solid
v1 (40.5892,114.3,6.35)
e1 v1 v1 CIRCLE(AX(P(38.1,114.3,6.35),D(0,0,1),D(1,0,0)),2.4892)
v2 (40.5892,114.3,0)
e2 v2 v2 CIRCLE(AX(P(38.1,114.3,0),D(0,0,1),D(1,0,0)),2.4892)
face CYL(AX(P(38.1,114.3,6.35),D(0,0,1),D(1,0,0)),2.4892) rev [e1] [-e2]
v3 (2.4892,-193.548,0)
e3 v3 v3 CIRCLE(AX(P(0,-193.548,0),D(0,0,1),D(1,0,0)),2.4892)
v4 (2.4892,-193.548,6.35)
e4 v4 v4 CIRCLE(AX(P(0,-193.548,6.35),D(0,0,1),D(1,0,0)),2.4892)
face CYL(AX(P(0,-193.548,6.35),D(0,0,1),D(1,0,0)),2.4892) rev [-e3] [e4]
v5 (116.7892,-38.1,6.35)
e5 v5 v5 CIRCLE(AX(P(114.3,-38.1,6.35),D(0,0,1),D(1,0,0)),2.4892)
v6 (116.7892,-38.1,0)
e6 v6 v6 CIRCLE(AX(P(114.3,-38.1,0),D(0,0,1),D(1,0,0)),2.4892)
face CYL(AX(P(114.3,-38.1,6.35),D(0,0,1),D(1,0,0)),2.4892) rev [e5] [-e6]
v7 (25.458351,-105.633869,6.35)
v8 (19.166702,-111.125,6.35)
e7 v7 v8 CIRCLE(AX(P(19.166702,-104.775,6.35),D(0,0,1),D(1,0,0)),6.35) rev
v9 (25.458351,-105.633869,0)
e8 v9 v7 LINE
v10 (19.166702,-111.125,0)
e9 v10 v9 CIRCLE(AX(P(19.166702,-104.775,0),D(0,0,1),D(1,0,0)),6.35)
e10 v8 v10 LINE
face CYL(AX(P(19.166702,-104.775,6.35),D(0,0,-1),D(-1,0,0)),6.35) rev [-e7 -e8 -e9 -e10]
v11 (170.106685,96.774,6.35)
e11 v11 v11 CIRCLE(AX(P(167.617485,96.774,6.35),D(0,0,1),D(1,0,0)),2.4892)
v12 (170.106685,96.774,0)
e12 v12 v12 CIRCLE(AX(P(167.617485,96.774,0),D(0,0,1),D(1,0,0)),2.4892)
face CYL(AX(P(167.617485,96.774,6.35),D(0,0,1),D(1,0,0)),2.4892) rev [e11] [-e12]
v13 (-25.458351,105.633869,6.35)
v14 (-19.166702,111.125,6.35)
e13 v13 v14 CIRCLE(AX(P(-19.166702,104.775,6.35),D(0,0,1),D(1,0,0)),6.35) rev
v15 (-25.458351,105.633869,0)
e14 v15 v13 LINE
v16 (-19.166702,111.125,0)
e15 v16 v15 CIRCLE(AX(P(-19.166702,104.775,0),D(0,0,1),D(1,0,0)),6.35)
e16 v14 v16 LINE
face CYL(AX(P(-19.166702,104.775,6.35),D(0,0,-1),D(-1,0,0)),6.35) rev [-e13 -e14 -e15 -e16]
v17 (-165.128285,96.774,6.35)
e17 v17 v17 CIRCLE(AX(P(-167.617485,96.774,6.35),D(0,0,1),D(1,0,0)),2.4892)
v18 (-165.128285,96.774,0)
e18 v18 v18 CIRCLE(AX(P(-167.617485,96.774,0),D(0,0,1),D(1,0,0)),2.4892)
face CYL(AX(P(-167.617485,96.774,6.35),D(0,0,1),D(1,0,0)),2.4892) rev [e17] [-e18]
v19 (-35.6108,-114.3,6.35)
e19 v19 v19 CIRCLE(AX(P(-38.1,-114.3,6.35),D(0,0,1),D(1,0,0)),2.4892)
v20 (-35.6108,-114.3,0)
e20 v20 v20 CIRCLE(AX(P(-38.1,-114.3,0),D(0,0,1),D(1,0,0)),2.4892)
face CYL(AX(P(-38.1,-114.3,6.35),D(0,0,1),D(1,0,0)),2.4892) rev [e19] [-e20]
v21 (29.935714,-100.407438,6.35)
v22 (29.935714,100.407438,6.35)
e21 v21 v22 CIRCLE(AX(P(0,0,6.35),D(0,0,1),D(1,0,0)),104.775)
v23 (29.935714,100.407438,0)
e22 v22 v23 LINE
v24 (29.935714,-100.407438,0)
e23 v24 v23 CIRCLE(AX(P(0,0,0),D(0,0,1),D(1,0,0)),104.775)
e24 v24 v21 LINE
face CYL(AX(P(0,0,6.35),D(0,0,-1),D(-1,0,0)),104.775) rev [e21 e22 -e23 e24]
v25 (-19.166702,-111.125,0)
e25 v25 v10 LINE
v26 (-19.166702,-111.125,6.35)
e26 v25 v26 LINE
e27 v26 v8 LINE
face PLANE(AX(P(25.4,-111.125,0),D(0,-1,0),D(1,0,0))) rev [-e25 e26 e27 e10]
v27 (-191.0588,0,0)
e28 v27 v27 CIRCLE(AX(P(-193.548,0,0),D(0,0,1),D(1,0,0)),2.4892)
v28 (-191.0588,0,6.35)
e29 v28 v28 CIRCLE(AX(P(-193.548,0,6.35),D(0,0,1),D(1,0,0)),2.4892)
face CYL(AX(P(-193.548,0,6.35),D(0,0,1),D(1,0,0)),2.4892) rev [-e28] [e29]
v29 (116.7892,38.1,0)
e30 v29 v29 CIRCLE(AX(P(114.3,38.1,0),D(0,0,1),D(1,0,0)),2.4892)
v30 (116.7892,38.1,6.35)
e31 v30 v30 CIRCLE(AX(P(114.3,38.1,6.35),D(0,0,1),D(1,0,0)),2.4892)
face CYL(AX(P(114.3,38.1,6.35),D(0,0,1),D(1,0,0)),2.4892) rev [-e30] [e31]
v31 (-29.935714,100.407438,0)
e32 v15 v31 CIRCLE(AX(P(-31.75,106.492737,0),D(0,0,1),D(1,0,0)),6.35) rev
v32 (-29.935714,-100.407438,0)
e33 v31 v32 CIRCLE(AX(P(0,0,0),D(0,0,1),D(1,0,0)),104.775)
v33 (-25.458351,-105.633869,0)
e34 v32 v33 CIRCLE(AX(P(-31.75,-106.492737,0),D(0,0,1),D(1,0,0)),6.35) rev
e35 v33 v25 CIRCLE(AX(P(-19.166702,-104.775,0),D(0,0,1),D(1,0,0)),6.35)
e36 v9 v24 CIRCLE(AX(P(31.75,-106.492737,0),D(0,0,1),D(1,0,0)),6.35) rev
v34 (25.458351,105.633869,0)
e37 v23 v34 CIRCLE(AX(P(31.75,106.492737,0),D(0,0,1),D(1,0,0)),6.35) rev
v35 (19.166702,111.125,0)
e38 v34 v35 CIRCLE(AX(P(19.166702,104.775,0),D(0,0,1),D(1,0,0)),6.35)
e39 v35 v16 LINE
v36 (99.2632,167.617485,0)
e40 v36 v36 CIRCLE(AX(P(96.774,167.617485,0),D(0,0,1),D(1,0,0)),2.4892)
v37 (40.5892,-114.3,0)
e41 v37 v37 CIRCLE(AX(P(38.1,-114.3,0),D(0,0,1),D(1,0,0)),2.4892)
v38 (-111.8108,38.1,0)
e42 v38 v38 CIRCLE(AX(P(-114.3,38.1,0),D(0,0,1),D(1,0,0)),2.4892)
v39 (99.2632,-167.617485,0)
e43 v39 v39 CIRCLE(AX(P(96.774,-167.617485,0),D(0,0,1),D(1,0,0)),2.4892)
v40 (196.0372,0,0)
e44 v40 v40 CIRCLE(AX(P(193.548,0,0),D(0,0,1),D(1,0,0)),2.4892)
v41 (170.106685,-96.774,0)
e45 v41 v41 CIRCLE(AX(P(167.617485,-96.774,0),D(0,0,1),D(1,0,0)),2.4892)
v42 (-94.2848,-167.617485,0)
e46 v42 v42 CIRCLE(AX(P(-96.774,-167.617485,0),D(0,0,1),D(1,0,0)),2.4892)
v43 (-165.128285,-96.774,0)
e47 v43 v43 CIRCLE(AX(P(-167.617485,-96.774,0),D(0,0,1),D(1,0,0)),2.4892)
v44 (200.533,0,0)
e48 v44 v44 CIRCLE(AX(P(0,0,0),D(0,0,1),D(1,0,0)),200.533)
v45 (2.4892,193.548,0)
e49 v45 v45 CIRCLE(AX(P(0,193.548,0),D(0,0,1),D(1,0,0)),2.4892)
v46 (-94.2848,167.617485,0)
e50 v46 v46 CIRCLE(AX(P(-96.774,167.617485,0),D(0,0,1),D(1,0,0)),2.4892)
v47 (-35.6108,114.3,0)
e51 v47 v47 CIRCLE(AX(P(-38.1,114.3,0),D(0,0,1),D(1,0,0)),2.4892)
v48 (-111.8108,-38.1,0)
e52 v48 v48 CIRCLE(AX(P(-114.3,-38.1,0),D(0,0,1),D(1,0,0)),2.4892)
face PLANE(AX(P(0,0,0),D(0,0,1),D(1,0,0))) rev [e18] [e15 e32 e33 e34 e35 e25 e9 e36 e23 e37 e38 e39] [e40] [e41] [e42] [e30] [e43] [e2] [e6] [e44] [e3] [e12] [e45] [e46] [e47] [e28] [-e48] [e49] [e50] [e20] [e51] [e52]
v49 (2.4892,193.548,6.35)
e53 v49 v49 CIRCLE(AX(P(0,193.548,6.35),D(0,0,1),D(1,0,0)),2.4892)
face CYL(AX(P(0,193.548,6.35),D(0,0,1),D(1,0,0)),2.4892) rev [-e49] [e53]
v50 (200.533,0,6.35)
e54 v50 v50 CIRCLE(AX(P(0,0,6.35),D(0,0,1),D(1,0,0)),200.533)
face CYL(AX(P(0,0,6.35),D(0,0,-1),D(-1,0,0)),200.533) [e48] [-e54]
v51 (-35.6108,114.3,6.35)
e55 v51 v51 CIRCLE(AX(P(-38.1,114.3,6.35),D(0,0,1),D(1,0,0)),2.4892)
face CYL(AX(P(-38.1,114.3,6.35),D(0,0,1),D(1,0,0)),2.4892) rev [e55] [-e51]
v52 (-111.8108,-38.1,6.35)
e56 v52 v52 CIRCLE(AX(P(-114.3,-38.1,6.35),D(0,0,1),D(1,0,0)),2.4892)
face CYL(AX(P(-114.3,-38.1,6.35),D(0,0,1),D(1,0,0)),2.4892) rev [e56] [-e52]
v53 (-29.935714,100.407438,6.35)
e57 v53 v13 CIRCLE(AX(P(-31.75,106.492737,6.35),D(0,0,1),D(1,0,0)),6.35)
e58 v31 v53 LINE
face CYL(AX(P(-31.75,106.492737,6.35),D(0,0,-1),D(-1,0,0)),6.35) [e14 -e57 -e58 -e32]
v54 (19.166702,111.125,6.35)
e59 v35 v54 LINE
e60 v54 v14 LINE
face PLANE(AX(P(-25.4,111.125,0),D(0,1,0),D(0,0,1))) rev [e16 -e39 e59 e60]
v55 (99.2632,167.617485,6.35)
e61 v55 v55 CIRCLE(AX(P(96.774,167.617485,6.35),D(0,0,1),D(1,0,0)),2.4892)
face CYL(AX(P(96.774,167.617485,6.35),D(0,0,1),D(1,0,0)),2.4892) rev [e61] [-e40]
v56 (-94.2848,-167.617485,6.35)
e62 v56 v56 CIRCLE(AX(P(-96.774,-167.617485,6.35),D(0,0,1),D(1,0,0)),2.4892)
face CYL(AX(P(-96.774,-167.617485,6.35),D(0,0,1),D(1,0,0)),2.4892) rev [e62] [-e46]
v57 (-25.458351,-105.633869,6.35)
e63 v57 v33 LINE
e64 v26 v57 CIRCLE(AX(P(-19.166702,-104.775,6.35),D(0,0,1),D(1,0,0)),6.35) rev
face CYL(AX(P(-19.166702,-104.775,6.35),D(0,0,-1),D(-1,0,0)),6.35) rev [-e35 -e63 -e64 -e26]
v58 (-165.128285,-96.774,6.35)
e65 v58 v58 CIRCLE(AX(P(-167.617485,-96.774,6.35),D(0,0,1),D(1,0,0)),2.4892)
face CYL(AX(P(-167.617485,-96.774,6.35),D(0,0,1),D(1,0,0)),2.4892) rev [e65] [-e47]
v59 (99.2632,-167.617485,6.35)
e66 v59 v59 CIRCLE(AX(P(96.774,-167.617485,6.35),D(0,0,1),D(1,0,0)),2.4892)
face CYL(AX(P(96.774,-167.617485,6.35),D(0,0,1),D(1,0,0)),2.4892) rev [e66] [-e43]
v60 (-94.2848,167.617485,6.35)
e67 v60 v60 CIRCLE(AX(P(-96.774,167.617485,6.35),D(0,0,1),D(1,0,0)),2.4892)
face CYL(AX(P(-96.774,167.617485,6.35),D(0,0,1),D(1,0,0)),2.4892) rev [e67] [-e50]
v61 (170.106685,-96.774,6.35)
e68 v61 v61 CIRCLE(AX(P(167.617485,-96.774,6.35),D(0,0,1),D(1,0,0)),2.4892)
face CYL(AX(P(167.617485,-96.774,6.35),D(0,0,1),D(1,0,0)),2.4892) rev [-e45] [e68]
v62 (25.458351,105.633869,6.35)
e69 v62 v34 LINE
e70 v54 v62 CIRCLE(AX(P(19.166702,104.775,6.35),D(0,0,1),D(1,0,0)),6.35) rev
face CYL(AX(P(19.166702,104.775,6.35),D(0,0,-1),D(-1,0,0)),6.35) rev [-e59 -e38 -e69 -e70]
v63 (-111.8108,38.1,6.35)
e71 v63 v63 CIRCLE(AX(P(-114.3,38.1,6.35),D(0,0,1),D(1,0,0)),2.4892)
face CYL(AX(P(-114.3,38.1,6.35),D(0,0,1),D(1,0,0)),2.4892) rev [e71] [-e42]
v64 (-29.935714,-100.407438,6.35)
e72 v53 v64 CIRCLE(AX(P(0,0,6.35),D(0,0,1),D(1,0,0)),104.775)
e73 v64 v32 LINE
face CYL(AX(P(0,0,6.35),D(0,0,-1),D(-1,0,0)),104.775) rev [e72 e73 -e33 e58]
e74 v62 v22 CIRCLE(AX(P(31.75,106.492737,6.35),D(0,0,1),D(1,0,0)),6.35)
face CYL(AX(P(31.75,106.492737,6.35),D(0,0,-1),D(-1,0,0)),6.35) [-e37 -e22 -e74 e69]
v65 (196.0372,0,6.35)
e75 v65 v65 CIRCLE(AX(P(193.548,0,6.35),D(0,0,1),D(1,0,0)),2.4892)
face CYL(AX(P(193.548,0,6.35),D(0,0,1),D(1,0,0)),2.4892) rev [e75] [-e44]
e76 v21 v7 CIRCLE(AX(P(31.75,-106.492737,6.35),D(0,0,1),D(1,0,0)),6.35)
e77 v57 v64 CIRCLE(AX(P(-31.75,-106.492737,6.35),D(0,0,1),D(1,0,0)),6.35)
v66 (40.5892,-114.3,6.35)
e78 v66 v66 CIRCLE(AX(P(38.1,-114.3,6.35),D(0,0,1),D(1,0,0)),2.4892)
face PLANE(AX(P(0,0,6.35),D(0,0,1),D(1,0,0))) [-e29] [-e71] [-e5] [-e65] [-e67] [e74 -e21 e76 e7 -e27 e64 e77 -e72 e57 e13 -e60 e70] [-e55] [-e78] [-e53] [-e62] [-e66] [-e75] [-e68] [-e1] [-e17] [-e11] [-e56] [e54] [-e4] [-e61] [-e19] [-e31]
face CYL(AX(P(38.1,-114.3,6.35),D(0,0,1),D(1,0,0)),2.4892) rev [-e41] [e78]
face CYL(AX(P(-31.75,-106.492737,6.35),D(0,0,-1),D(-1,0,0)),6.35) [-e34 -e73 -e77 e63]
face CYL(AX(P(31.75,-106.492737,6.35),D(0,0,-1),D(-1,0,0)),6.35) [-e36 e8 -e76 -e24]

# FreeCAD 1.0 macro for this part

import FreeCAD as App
import Part
import Sketcher
Q = App.Units.Quantity


def edges_at(feature, points):
    """Names of the edges that pass closest to the given points."""
    edges = feature.Shape.Edges
    near = lambda p: min(range(len(edges)), key=lambda i: edges[i].distToShape(Part.Vertex(*p))[0])
    return sorted({f"Edge{near(p) + 1}" for p in points})


def add_polygon(sketch, points):
    """Adds a closed chain of lines whose ends are joined by coincident constraints."""
    first, n = sketch.GeometryCount, len(points)
    for a, b in zip(points, points[1:] + points[:1]):
        sketch.addGeometry(Part.LineSegment(App.Vector(*a, 0), App.Vector(*b, 0)), False)
    for i in range(n):
        sketch.addConstraint(Sketcher.Constraint("Coincident", first + i, 2, first + (i + 1) % n, 1))

doc = App.newDocument("Part")
params = doc.addObject("Spreadsheet::Sheet", "Params")
for row, (alias, value) in enumerate([
    ("sketch1_diameter", "15.79 in"),
    ("sketch1_diameter2", "8.25 in"),
    ("pad1_length", "0.25 in"),
    ("sketch2_diameter", "0.196 in"),
    ("hole_diameter", "0.196 in"),
    ("sketch3_width", "2 in"),
    ("sketch3_height", "0.375 in"),
    ("sketch4_diameter", "0.196 in"),
    ("hole2_diameter", "0.196 in"),
    ("fillet_radius", "0.25 in"),
    ("fillet2_radius", "0.25 in"),
], start=1):
    params.set(f"A{row}", alias)
    params.set(f"B{row}", "=" + value)
    params.setAlias(f"B{row}", alias)

body = doc.addObject("PartDesign::Body", "Body")

sketch1 = body.newObject("Sketcher::SketchObject", "Sketch")
sketch1.AttachmentSupport = (doc.getObject("XY_Plane"), [""])
sketch1.MapMode = "FlatFace"
sketch1.addGeometry(Part.Circle(App.Vector(0, 0, 0), App.Vector(0, 0, 1), 201), False)
sketch1.addGeometry(Part.Circle(App.Vector(0, 0, 0), App.Vector(0, 0, 1), 105), False)
sketch1.addConstraint(Sketcher.Constraint("Coincident", 0, 3, -1, 1))
sketch1.addConstraint(Sketcher.Constraint("Coincident", 1, 3, -1, 1))
sketch1.addConstraint(Sketcher.Constraint("Diameter", 0, Q("15.79 in")))
sketch1.addConstraint(Sketcher.Constraint("Diameter", 1, Q("8.25 in")))
sketch1.setExpression("Constraints[2]", "Params.sketch1_diameter")
sketch1.setExpression("Constraints[3]", "Params.sketch1_diameter2")
pad1 = body.newObject("PartDesign::Pad", "Pad")
pad1.Profile = sketch1
pad1.setExpression("Length", "Params.pad1_length")

sketch2 = body.newObject("Sketcher::SketchObject", "Sketch001")
sketch2.AttachmentSupport = (doc.getObject("XY_Plane"), [""])
sketch2.MapMode = "FlatFace"
sketch2.AttachmentOffset = App.Placement(App.Vector(0, 0, 0.25 * 25.4), App.Rotation())
sketch2.addGeometry(Part.Circle(App.Vector(-96.8, 167.6, 0), App.Vector(0, 0, 1), 2.5), False)
sketch2.addGeometry(Part.Circle(App.Vector(-167.6, 96.8, 0), App.Vector(0, 0, 1), 2.5), False)
sketch2.addGeometry(Part.Circle(App.Vector(-193.5, 0, 0), App.Vector(0, 0, 1), 2.5), False)
sketch2.addGeometry(Part.Circle(App.Vector(-167.6, -96.8, 0), App.Vector(0, 0, 1), 2.5), False)
sketch2.addGeometry(Part.Circle(App.Vector(-96.8, -167.6, 0), App.Vector(0, 0, 1), 2.5), False)
sketch2.addGeometry(Part.Circle(App.Vector(0, -193.5, 0), App.Vector(0, 0, 1), 2.5), False)
sketch2.addGeometry(Part.Circle(App.Vector(96.8, -167.6, 0), App.Vector(0, 0, 1), 2.5), False)
sketch2.addGeometry(Part.Circle(App.Vector(167.6, -96.8, 0), App.Vector(0, 0, 1), 2.5), False)
sketch2.addGeometry(Part.Circle(App.Vector(193.5, 0, 0), App.Vector(0, 0, 1), 2.5), False)
sketch2.addGeometry(Part.Circle(App.Vector(167.6, 96.8, 0), App.Vector(0, 0, 1), 2.5), False)
sketch2.addGeometry(Part.Circle(App.Vector(96.8, 167.6, 0), App.Vector(0, 0, 1), 2.5), False)
sketch2.addGeometry(Part.Circle(App.Vector(0, 193.5, 0), App.Vector(0, 0, 1), 2.5), False)
sketch2.addConstraint(Sketcher.Constraint("Equal", 0, 1))
sketch2.addConstraint(Sketcher.Constraint("Equal", 1, 2))
sketch2.addConstraint(Sketcher.Constraint("Equal", 2, 3))
sketch2.addConstraint(Sketcher.Constraint("Equal", 3, 4))
sketch2.addConstraint(Sketcher.Constraint("Equal", 4, 5))
sketch2.addConstraint(Sketcher.Constraint("Equal", 5, 6))
sketch2.addConstraint(Sketcher.Constraint("Equal", 6, 7))
sketch2.addConstraint(Sketcher.Constraint("Equal", 7, 8))
sketch2.addConstraint(Sketcher.Constraint("Equal", 8, 9))
sketch2.addConstraint(Sketcher.Constraint("Equal", 9, 10))
sketch2.addConstraint(Sketcher.Constraint("Equal", 10, 11))
sketch2.addConstraint(Sketcher.Constraint("Symmetric", 0, 3, 6, 3, -1, 1))
sketch2.addConstraint(Sketcher.Constraint("Symmetric", 1, 3, 7, 3, -1, 1))
sketch2.addConstraint(Sketcher.Constraint("Symmetric", 2, 3, 8, 3, -1, 1))
sketch2.addConstraint(Sketcher.Constraint("Symmetric", 3, 3, 9, 3, -1, 1))
sketch2.addConstraint(Sketcher.Constraint("Symmetric", 4, 3, 10, 3, -1, 1))
sketch2.addConstraint(Sketcher.Constraint("Symmetric", 5, 3, 11, 3, -1, 1))
sketch2.addConstraint(Sketcher.Constraint("Symmetric", 4, 3, 6, 3, -2))
sketch2.addConstraint(Sketcher.Constraint("Symmetric", 3, 3, 7, 3, -2))
sketch2.addConstraint(Sketcher.Constraint("PointOnObject", 2, 3, -1))
sketch2.addConstraint(Sketcher.Constraint("PointOnObject", 5, 3, -2))
sketch2.addConstraint(Sketcher.Constraint("Diameter", 0, Q("0.196 in")))
sketch2.addConstraint(Sketcher.Constraint("DistanceX", 0, 3, -1, 1, Q("3.81 in")))
sketch2.addConstraint(Sketcher.Constraint("DistanceY", -1, 1, 1, 3, Q("3.81 in")))
sketch2.addConstraint(Sketcher.Constraint("DistanceX", 2, 3, -1, 1, Q("7.62 in")))
sketch2.addConstraint(Sketcher.Constraint("DistanceY", 5, 3, -1, 1, Q("7.62 in")))
sketch2.addConstraint(Sketcher.Constraint("DistanceY", 4, 3, 0, 3, Q("335.23497 mm")))
sketch2.addConstraint(Sketcher.Constraint("DistanceX", 3, 3, 7, 3, Q("335.23497 mm")))
sketch2.setExpression("Constraints[21]", "Params.sketch2_diameter")
doc.recompute()
hole = body.newObject("PartDesign::Hole", "Hole")
hole.Profile = sketch2
hole.ThreadType = "None"
hole.setExpression("Diameter", "Params.hole_diameter")
hole.DepthType = "ThroughAll"

sketch3 = body.newObject("Sketcher::SketchObject", "Sketch002")
sketch3.AttachmentSupport = (doc.getObject("XY_Plane"), [""])
sketch3.MapMode = "FlatFace"
sketch3.AttachmentOffset = App.Placement(App.Vector(0, 0, 0.25 * 25.4), App.Rotation())
add_polygon(sketch3, [(-25, 111), (-25, 102), (25, 102), (25, 111)])
add_polygon(sketch3, [(-25, -102), (-25, -111), (25, -111), (25, -102)])
sketch3.addConstraint(Sketcher.Constraint("Vertical", 0))
sketch3.addConstraint(Sketcher.Constraint("Horizontal", 1))
sketch3.addConstraint(Sketcher.Constraint("Vertical", 2))
sketch3.addConstraint(Sketcher.Constraint("Horizontal", 3))
sketch3.addConstraint(Sketcher.Constraint("Vertical", 4))
sketch3.addConstraint(Sketcher.Constraint("Horizontal", 5))
sketch3.addConstraint(Sketcher.Constraint("Vertical", 6))
sketch3.addConstraint(Sketcher.Constraint("Horizontal", 7))
sketch3.addConstraint(Sketcher.Constraint("Symmetric", 2, 2, 4, 2, -1, 1))
sketch3.addConstraint(Sketcher.Constraint("Symmetric", 0, 2, 6, 2, -1, 1))
sketch3.addConstraint(Sketcher.Constraint("Vertical", 3, 2, 4, 2))
sketch3.addConstraint(Sketcher.Constraint("DistanceX", 1, 1, 1, 2, Q("2 in")))
sketch3.addConstraint(Sketcher.Constraint("DistanceY", -1, 1, 0, 2, Q("4 in")))
sketch3.addConstraint(Sketcher.Constraint("DistanceY", 0, 2, 0, 1, Q("0.375 in")))
sketch3.setExpression("Constraints[19]", "Params.sketch3_width")
sketch3.setExpression("Constraints[21]", "Params.sketch3_height")
pocket1 = body.newObject("PartDesign::Pocket", "Pocket")
pocket1.Profile = sketch3
pocket1.Type = "ThroughAll"

sketch4 = body.newObject("Sketcher::SketchObject", "Sketch003")
sketch4.AttachmentSupport = (doc.getObject("XY_Plane"), [""])
sketch4.MapMode = "FlatFace"
sketch4.AttachmentOffset = App.Placement(App.Vector(0, 0, 0.25 * 25.4), App.Rotation())
sketch4.addGeometry(Part.Circle(App.Vector(-114.3, 38.1, 0), App.Vector(0, 0, 1), 2.5), False)
sketch4.addGeometry(Part.Circle(App.Vector(-114.3, -38.1, 0), App.Vector(0, 0, 1), 2.5), False)
sketch4.addGeometry(Part.Circle(App.Vector(-38.1, -114.3, 0), App.Vector(0, 0, 1), 2.5), False)
sketch4.addGeometry(Part.Circle(App.Vector(38.1, -114.3, 0), App.Vector(0, 0, 1), 2.5), False)
sketch4.addGeometry(Part.Circle(App.Vector(114.3, -38.1, 0), App.Vector(0, 0, 1), 2.5), False)
sketch4.addGeometry(Part.Circle(App.Vector(114.3, 38.1, 0), App.Vector(0, 0, 1), 2.5), False)
sketch4.addGeometry(Part.Circle(App.Vector(38.1, 114.3, 0), App.Vector(0, 0, 1), 2.5), False)
sketch4.addGeometry(Part.Circle(App.Vector(-38.1, 114.3, 0), App.Vector(0, 0, 1), 2.5), False)
sketch4.addConstraint(Sketcher.Constraint("Equal", 0, 1))
sketch4.addConstraint(Sketcher.Constraint("Equal", 1, 2))
sketch4.addConstraint(Sketcher.Constraint("Equal", 2, 3))
sketch4.addConstraint(Sketcher.Constraint("Equal", 3, 4))
sketch4.addConstraint(Sketcher.Constraint("Equal", 4, 5))
sketch4.addConstraint(Sketcher.Constraint("Equal", 5, 6))
sketch4.addConstraint(Sketcher.Constraint("Equal", 6, 7))
sketch4.addConstraint(Sketcher.Constraint("Symmetric", 0, 3, 4, 3, -1, 1))
sketch4.addConstraint(Sketcher.Constraint("Symmetric", 1, 3, 5, 3, -1, 1))
sketch4.addConstraint(Sketcher.Constraint("Symmetric", 2, 3, 6, 3, -1, 1))
sketch4.addConstraint(Sketcher.Constraint("Symmetric", 3, 3, 7, 3, -1, 1))
sketch4.addConstraint(Sketcher.Constraint("Symmetric", 2, 3, 3, 3, -2))
sketch4.addConstraint(Sketcher.Constraint("Symmetric", 1, 3, 4, 3, -2))
sketch4.addConstraint(Sketcher.Constraint("Diameter", 0, Q("0.196 in")))
sketch4.addConstraint(Sketcher.Constraint("DistanceY", 1, 3, 0, 3, Q("3 in")))
sketch4.addConstraint(Sketcher.Constraint("DistanceX", 1, 3, 2, 3, Q("3 in")))
sketch4.addConstraint(Sketcher.Constraint("DistanceY", 2, 3, 1, 3, Q("3 in")))
sketch4.addConstraint(Sketcher.Constraint("DistanceX", 2, 3, 3, 3, Q("3 in")))
sketch4.setExpression("Constraints[13]", "Params.sketch4_diameter")
doc.recompute()
hole2 = body.newObject("PartDesign::Hole", "Hole001")
hole2.Profile = sketch4
hole2.ThreadType = "None"
hole2.setExpression("Diameter", "Params.hole2_diameter")
hole2.DepthType = "ThroughAll"
doc.recompute()

fillet = body.newObject("PartDesign::Fillet", "Fillet")
fillet.Base = (hole2, edges_at(hole2, [
    (25.4, -101.65, 3.175),
    (-25.4, -101.65, 3.175),
    (-25.4, 101.65, 3.175),
    (25.4, 101.65, 3.175),
]))
fillet.setExpression("Radius", "Params.fillet_radius")
doc.recompute()

fillet2 = body.newObject("PartDesign::Fillet", "Fillet001")
fillet2.Base = (fillet, edges_at(fillet, [
    (25.4, -111.125, 3.175),
    (-25.4, -111.125, 3.175),
    (25.4, 111.125, 3.175),
    (-25.4, 111.125, 3.175),
]))
fillet2.setExpression("Radius", "Params.fillet2_radius")

doc.recompute()
